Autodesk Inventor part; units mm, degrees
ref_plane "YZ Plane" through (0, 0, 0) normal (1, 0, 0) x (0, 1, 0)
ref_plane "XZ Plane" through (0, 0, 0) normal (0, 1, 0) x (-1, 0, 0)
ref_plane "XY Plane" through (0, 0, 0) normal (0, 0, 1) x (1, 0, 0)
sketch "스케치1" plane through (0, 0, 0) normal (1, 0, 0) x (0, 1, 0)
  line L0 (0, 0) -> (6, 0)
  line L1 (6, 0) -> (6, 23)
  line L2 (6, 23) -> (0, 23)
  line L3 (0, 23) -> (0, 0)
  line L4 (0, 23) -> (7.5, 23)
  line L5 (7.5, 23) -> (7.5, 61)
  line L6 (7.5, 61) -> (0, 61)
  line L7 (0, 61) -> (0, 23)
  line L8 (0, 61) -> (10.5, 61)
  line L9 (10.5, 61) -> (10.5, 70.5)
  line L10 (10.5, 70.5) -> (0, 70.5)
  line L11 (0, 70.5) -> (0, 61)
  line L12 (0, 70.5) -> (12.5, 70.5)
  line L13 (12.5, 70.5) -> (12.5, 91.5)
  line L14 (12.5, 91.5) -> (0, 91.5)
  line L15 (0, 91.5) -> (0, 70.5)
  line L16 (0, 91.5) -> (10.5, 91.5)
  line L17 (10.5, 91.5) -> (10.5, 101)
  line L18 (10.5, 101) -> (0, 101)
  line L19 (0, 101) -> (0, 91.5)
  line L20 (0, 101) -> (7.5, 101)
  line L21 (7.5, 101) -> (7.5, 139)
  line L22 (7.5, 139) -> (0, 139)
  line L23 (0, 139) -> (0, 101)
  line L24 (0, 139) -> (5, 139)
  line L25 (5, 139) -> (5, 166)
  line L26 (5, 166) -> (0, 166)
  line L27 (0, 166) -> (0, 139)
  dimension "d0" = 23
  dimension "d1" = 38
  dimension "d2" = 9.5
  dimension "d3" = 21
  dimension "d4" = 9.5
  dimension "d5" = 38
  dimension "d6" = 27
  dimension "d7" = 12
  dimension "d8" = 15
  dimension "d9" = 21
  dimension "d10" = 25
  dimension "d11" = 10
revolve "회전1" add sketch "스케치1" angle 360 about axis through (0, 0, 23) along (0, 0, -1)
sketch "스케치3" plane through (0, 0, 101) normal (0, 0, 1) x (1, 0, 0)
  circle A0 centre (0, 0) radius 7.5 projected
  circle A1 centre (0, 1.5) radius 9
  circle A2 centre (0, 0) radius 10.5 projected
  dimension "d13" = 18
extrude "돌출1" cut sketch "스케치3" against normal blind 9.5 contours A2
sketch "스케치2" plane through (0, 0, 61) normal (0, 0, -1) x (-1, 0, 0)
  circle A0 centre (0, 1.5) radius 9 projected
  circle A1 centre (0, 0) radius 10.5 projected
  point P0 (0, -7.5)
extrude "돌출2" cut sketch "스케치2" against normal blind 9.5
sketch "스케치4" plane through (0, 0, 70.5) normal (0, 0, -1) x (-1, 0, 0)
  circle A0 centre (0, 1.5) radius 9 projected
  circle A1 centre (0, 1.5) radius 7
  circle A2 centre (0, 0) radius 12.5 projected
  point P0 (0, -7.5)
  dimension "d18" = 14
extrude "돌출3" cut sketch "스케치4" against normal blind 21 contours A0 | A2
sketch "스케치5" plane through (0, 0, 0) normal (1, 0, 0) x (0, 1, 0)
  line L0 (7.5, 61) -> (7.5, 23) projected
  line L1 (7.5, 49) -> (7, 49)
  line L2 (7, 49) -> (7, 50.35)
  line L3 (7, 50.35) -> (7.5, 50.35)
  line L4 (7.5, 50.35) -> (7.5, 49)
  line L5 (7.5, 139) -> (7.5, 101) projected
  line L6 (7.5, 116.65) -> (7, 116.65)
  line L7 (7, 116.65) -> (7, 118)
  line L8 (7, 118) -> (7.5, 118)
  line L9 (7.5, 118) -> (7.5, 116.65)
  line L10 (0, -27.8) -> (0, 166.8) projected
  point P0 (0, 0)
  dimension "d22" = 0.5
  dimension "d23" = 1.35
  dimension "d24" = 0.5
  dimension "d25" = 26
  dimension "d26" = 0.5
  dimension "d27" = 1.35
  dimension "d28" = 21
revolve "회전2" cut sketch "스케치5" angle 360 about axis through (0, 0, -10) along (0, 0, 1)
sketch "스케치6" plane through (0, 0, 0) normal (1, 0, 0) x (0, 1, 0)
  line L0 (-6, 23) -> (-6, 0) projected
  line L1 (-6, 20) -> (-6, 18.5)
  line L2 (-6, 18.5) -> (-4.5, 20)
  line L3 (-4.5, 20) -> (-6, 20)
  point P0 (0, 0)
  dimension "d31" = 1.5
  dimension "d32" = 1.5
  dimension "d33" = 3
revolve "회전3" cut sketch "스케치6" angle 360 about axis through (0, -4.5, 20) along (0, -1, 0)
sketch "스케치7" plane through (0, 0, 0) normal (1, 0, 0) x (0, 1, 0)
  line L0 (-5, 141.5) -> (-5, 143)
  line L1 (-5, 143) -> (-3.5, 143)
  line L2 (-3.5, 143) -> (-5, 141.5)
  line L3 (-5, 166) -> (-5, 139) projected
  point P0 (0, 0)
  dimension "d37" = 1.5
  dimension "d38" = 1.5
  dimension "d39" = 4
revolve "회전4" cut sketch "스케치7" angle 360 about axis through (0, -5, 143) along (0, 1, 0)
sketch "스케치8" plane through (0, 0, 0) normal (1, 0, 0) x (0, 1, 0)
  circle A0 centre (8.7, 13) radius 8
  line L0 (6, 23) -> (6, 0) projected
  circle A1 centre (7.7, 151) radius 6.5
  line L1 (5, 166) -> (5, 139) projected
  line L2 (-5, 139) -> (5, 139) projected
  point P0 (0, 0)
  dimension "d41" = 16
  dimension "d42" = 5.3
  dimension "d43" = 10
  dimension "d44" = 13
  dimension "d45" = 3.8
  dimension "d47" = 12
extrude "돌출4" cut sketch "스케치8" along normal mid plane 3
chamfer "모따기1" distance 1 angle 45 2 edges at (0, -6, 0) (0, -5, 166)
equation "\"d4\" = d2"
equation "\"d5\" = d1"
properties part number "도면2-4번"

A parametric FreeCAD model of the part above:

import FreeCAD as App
import Part
import Sketcher
from FreeCAD import Vector
Q = App.Units.Quantity


def edges_at(feature, points):
    """Names of the edges that pass closest to the given points."""
    edges = feature.Shape.Edges
    near = lambda p: min(range(len(edges)), key=lambda i: edges[i].distToShape(Part.Vertex(*p))[0])
    return sorted({f"Edge{near(p) + 1}" for p in points})

doc = App.newDocument("Part")
body = doc.addObject("PartDesign::Body", "Body")

# Sketch on YZ plane
sketch1 = body.newObject("Sketcher::SketchObject", "Sketch")
sketch1.AttachmentSupport = (doc.getObject("YZ_Plane"), [""])
sketch1.MapMode = "FlatFace"
sketch1.addGeometry(Part.LineSegment(Vector(0, 0, 0), Vector(6, 0, 0)), False)
sketch1.addGeometry(Part.LineSegment(Vector(6, 0, 0), Vector(6, 23, 0)), False)
sketch1.addGeometry(Part.LineSegment(Vector(6, 23, 0), Vector(7.5, 23, 0)), False)
sketch1.addGeometry(Part.LineSegment(Vector(7.5, 23, 0), Vector(7.5, 61, 0)), False)
sketch1.addGeometry(Part.LineSegment(Vector(7.5, 61, 0), Vector(10.5, 61, 0)), False)
sketch1.addGeometry(Part.LineSegment(Vector(10.5, 61, 0), Vector(10.5, 70.5, 0)), False)
sketch1.addGeometry(Part.LineSegment(Vector(10.5, 70.5, 0), Vector(12.5, 70.5, 0)), False)
sketch1.addGeometry(Part.LineSegment(Vector(12.5, 70.5, 0), Vector(12.5, 91.5, 0)), False)
sketch1.addGeometry(Part.LineSegment(Vector(12.5, 91.5, 0), Vector(10.5, 91.5, 0)), False)
sketch1.addGeometry(Part.LineSegment(Vector(10.5, 91.5, 0), Vector(10.5, 101, 0)), False)
sketch1.addGeometry(Part.LineSegment(Vector(10.5, 101, 0), Vector(7.5, 101, 0)), False)
sketch1.addGeometry(Part.LineSegment(Vector(7.5, 101, 0), Vector(7.5, 139, 0)), False)
sketch1.addGeometry(Part.LineSegment(Vector(7.5, 139, 0), Vector(5, 139, 0)), False)
sketch1.addGeometry(Part.LineSegment(Vector(5, 139, 0), Vector(5, 166, 0)), False)
sketch1.addGeometry(Part.LineSegment(Vector(5, 166, 0), Vector(0, 166, 0)), False)
sketch1.addGeometry(Part.LineSegment(Vector(0, 166, 0), Vector(0, 0, 0)), False)
sketch1.addConstraint(Sketcher.Constraint("Coincident", 0, 2, 1, 1))
sketch1.addConstraint(Sketcher.Constraint("Coincident", 1, 2, 2, 1))
sketch1.addConstraint(Sketcher.Constraint("Coincident", 2, 2, 3, 1))
sketch1.addConstraint(Sketcher.Constraint("Coincident", 3, 2, 4, 1))
sketch1.addConstraint(Sketcher.Constraint("Coincident", 4, 2, 5, 1))
sketch1.addConstraint(Sketcher.Constraint("Coincident", 5, 2, 6, 1))
sketch1.addConstraint(Sketcher.Constraint("Coincident", 6, 2, 7, 1))
sketch1.addConstraint(Sketcher.Constraint("Coincident", 7, 2, 8, 1))
sketch1.addConstraint(Sketcher.Constraint("Coincident", 8, 2, 9, 1))
sketch1.addConstraint(Sketcher.Constraint("Coincident", 9, 2, 10, 1))
sketch1.addConstraint(Sketcher.Constraint("Coincident", 10, 2, 11, 1))
sketch1.addConstraint(Sketcher.Constraint("Coincident", 11, 2, 12, 1))
sketch1.addConstraint(Sketcher.Constraint("Coincident", 12, 2, 13, 1))
sketch1.addConstraint(Sketcher.Constraint("Coincident", 13, 2, 14, 1))
sketch1.addConstraint(Sketcher.Constraint("Coincident", 14, 2, 15, 1))
sketch1.addConstraint(Sketcher.Constraint("Coincident", 15, 2, 0, 1))
sketch1.addConstraint(Sketcher.Constraint("Horizontal", 0))
sketch1.addConstraint(Sketcher.Constraint("Vertical", 1))
sketch1.addConstraint(Sketcher.Constraint("Horizontal", 2))
sketch1.addConstraint(Sketcher.Constraint("Vertical", 3))
sketch1.addConstraint(Sketcher.Constraint("Horizontal", 4))
sketch1.addConstraint(Sketcher.Constraint("Vertical", 5))
sketch1.addConstraint(Sketcher.Constraint("Horizontal", 6))
sketch1.addConstraint(Sketcher.Constraint("Vertical", 7))
sketch1.addConstraint(Sketcher.Constraint("Horizontal", 8))
sketch1.addConstraint(Sketcher.Constraint("Vertical", 9))
sketch1.addConstraint(Sketcher.Constraint("Horizontal", 10))
sketch1.addConstraint(Sketcher.Constraint("Vertical", 11))
sketch1.addConstraint(Sketcher.Constraint("Horizontal", 12))
sketch1.addConstraint(Sketcher.Constraint("Vertical", 13))
sketch1.addConstraint(Sketcher.Constraint("Horizontal", 14))
sketch1.addConstraint(Sketcher.Constraint("Vertical", 15))
sketch1.addConstraint(Sketcher.Constraint("Coincident", 15, 2, -1, 1))
sketch1.addConstraint(Sketcher.Constraint("Vertical", 5, 2, 8, 2))
sketch1.addConstraint(Sketcher.Constraint("Vertical", 3, 2, 10, 2))
sketch1.addConstraint(Sketcher.Constraint("Equal", 5, 9))
sketch1.addConstraint(Sketcher.Constraint("Equal", 3, 11))
sketch1.addConstraint(Sketcher.Constraint("DistanceY", 1, 1, 1, 2, Q("23 mm")))
sketch1.addConstraint(Sketcher.Constraint("DistanceY", 3, 1, 3, 2, Q("38 mm")))
sketch1.addConstraint(Sketcher.Constraint("DistanceY", 7, 1, 7, 2, Q("21 mm")))
sketch1.addConstraint(Sketcher.Constraint("DistanceY", 13, 1, 13, 2, Q("27 mm")))
sketch1.addConstraint(Sketcher.Constraint("DistanceY", 5, 1, 5, 2, Q("9.5 mm")))
sketch1.addConstraint(Sketcher.Constraint("DistanceX", 0, 1, 0, 2, Q("6 mm")))
sketch1.addConstraint(Sketcher.Constraint("DistanceX", 4, 1, 4, 2, Q("3 mm")))
sketch1.addConstraint(Sketcher.Constraint("DistanceX", 6, 1, 6, 2, Q("2 mm")))
sketch1.addConstraint(Sketcher.Constraint("DistanceX", 14, 2, 14, 1, Q("5 mm")))
sketch1.addConstraint(Sketcher.Constraint("DistanceX", 2, 1, 2, 2, Q("1.5 mm")))
revolution = body.newObject("PartDesign::Revolution", "Revolution")
revolution.Profile = sketch1
revolution.ReferenceAxis = (sketch1, ["V_Axis"])
revolution.Angle = 360

# Sketch on XY plane
sketch2 = body.newObject("Sketcher::SketchObject", "Sketch001")
sketch2.AttachmentSupport = (doc.getObject("XY_Plane"), [""])
sketch2.MapMode = "FlatFace"
sketch2.AttachmentOffset = App.Placement(Vector(0, 0, 101), App.Rotation())
sketch2.addGeometry(Part.Circle(Vector(0, 0, 0), Vector(0, 0, 1), 10.5), False)
sketch2.addGeometry(Part.Circle(Vector(0, 1.5, 0), Vector(0, 0, 1), 9), False)
sketch2.addConstraint(Sketcher.Constraint("Coincident", 0, 3, -1, 1))
sketch2.addConstraint(Sketcher.Constraint("PointOnObject", 1, 3, -2))
sketch2.addConstraint(Sketcher.Constraint("Diameter", 1, Q("18 mm")))
sketch2.addConstraint(Sketcher.Constraint("Diameter", 0, Q("21 mm")))
sketch2.addConstraint(Sketcher.Constraint("DistanceY", -1, 1, 1, 3, Q("1.5 mm")))
pocket1 = body.newObject("PartDesign::Pocket", "Pocket")
pocket1.Profile = sketch2
pocket1.Length = 9.5

# Sketch on XY plane
sketch3 = body.newObject("Sketcher::SketchObject", "Sketch002")
sketch3.AttachmentSupport = (doc.getObject("XY_Plane"), [""])
sketch3.MapMode = "FlatFace"
sketch3.AttachmentOffset = App.Placement(Vector(0, 0, 61), App.Rotation())
sketch3.addGeometry(Part.Circle(Vector(0, 0, 0), Vector(0, 0, 1), 10.5), False)
sketch3.addGeometry(Part.Circle(Vector(0, 1.5, 0), Vector(0, 0, 1), 9), False)
sketch3.addConstraint(Sketcher.Constraint("Coincident", 0, 3, -1, 1))
sketch3.addConstraint(Sketcher.Constraint("PointOnObject", 1, 3, -2))
sketch3.addConstraint(Sketcher.Constraint("Diameter", 0, Q("21 mm")))
sketch3.addConstraint(Sketcher.Constraint("Diameter", 1, Q("18 mm")))
sketch3.addConstraint(Sketcher.Constraint("DistanceY", -1, 1, 1, 3, Q("1.5 mm")))
pocket2 = body.newObject("PartDesign::Pocket", "Pocket001")
pocket2.Profile = sketch3
pocket2.Length = 9.5
pocket2.Reversed = True

# Sketch on XY plane
sketch4 = body.newObject("Sketcher::SketchObject", "Sketch003")
sketch4.AttachmentSupport = (doc.getObject("XY_Plane"), [""])
sketch4.MapMode = "FlatFace"
sketch4.AttachmentOffset = App.Placement(Vector(0, 0, 70.5), App.Rotation())
sketch4.addGeometry(Part.Circle(Vector(0, 0, 0), Vector(0, 0, 1), 12.5), False)
sketch4.addGeometry(Part.Circle(Vector(0, 1.5, 0), Vector(0, 0, 1), 7), False)
sketch4.addConstraint(Sketcher.Constraint("Coincident", 0, 3, -1, 1))
sketch4.addConstraint(Sketcher.Constraint("PointOnObject", 1, 3, -2))
sketch4.addConstraint(Sketcher.Constraint("Diameter", 1, Q("14 mm")))
sketch4.addConstraint(Sketcher.Constraint("Diameter", 0, Q("25 mm")))
sketch4.addConstraint(Sketcher.Constraint("DistanceY", -1, 1, 1, 3, Q("1.5 mm")))
pocket3 = body.newObject("PartDesign::Pocket", "Pocket002")
pocket3.Profile = sketch4
pocket3.Length = 21
pocket3.Reversed = True

# Sketch on YZ plane
sketch5 = body.newObject("Sketcher::SketchObject", "Sketch004")
sketch5.AttachmentSupport = (doc.getObject("YZ_Plane"), [""])
sketch5.MapMode = "FlatFace"
sketch5.addGeometry(Part.LineSegment(Vector(7.5, 49, 0), Vector(7.5, 50.35, 0)), False)
sketch5.addGeometry(Part.LineSegment(Vector(7.5, 50.35, 0), Vector(7, 50.35, 0)), False)
sketch5.addGeometry(Part.LineSegment(Vector(7, 50.35, 0), Vector(7, 49, 0)), False)
sketch5.addGeometry(Part.LineSegment(Vector(7, 49, 0), Vector(7.5, 49, 0)), False)
sketch5.addGeometry(Part.LineSegment(Vector(7.5, 116.65, 0), Vector(7.5, 118, 0)), False)
sketch5.addGeometry(Part.LineSegment(Vector(7.5, 118, 0), Vector(7, 118, 0)), False)
sketch5.addGeometry(Part.LineSegment(Vector(7, 118, 0), Vector(7, 116.65, 0)), False)
sketch5.addGeometry(Part.LineSegment(Vector(7, 116.65, 0), Vector(7.5, 116.65, 0)), False)
sketch5.addConstraint(Sketcher.Constraint("Coincident", 0, 2, 1, 1))
sketch5.addConstraint(Sketcher.Constraint("Coincident", 1, 2, 2, 1))
sketch5.addConstraint(Sketcher.Constraint("Coincident", 2, 2, 3, 1))
sketch5.addConstraint(Sketcher.Constraint("Coincident", 3, 2, 0, 1))
sketch5.addConstraint(Sketcher.Constraint("Coincident", 4, 2, 5, 1))
sketch5.addConstraint(Sketcher.Constraint("Coincident", 5, 2, 6, 1))
sketch5.addConstraint(Sketcher.Constraint("Coincident", 6, 2, 7, 1))
sketch5.addConstraint(Sketcher.Constraint("Coincident", 7, 2, 4, 1))
sketch5.addConstraint(Sketcher.Constraint("Vertical", 0))
sketch5.addConstraint(Sketcher.Constraint("Horizontal", 1))
sketch5.addConstraint(Sketcher.Constraint("Vertical", 2))
sketch5.addConstraint(Sketcher.Constraint("Horizontal", 3))
sketch5.addConstraint(Sketcher.Constraint("Vertical", 4))
sketch5.addConstraint(Sketcher.Constraint("Horizontal", 5))
sketch5.addConstraint(Sketcher.Constraint("Vertical", 6))
sketch5.addConstraint(Sketcher.Constraint("Horizontal", 7))
sketch5.addConstraint(Sketcher.Constraint("Vertical", 3, 2, 4, 2))
sketch5.addConstraint(Sketcher.Constraint("Vertical", 2, 2, 5, 2))
sketch5.addConstraint(Sketcher.Constraint("Equal", 2, 4))
sketch5.addConstraint(Sketcher.Constraint("DistanceX", 1, 2, 1, 1, Q("0.5 mm")))
sketch5.addConstraint(Sketcher.Constraint("DistanceY", 0, 1, 0, 2, Q("1.35 mm")))
sketch5.addConstraint(Sketcher.Constraint("DistanceX", -1, 1, 1, 2, Q("7 mm")))
sketch5.addConstraint(Sketcher.Constraint("DistanceY", -1, 1, 2, 2, Q("49 mm")))
sketch5.addConstraint(Sketcher.Constraint("DistanceY", -1, 1, 4, 2, Q("118 mm")))
groove = body.newObject("PartDesign::Groove", "Groove")
groove.Profile = sketch5
groove.ReferenceAxis = (sketch5, ["V_Axis"])
groove.Angle = 360

# Sketch on YZ plane
sketch6 = body.newObject("Sketcher::SketchObject", "Sketch005")
sketch6.AttachmentSupport = (doc.getObject("YZ_Plane"), [""])
sketch6.MapMode = "FlatFace"
sketch6.addGeometry(Part.LineSegment(Vector(-4.5, 20, 0), Vector(-6, 20, 0)), False)
sketch6.addGeometry(Part.LineSegment(Vector(-6, 20, 0), Vector(-6, 18.5, 0)), False)
sketch6.addGeometry(Part.LineSegment(Vector(-6, 18.5, 0), Vector(-4.5, 20, 0)), False)
sketch6.addGeometry(Part.LineSegment(Vector(-4.5, 20, 0), Vector(-6, 20, 0)), True)  # axis
sketch6.addConstraint(Sketcher.Constraint("Coincident", 0, 2, 1, 1))
sketch6.addConstraint(Sketcher.Constraint("Coincident", 1, 2, 2, 1))
sketch6.addConstraint(Sketcher.Constraint("Coincident", 2, 2, 0, 1))
sketch6.addConstraint(Sketcher.Constraint("Horizontal", 0))
sketch6.addConstraint(Sketcher.Constraint("Vertical", 1))
sketch6.addConstraint(Sketcher.Constraint("Horizontal", 3))
sketch6.addConstraint(Sketcher.Constraint("Coincident", 3, 1, 2, 2))
sketch6.addConstraint(Sketcher.Constraint("Vertical", 1, 2, 3, 2))
sketch6.addConstraint(Sketcher.Constraint("Equal", 3, 1))
sketch6.addConstraint(Sketcher.Constraint("DistanceX", 0, 2, 0, 1, Q("1.5 mm")))
sketch6.addConstraint(Sketcher.Constraint("DistanceX", 0, 2, -1, 1, Q("6 mm")))
sketch6.addConstraint(Sketcher.Constraint("DistanceY", -1, 1, 0, 2, Q("20 mm")))
groove2 = body.newObject("PartDesign::Groove", "Groove001")
groove2.Profile = sketch6
groove2.ReferenceAxis = (sketch6, ["Axis0"])
groove2.Angle = 360

# Sketch on YZ plane
sketch7 = body.newObject("Sketcher::SketchObject", "Sketch006")
sketch7.AttachmentSupport = (doc.getObject("YZ_Plane"), [""])
sketch7.MapMode = "FlatFace"
sketch7.addGeometry(Part.LineSegment(Vector(-5, 143, 0), Vector(-5, 141.5, 0)), False)
sketch7.addGeometry(Part.LineSegment(Vector(-5, 141.5, 0), Vector(-3.5, 143, 0)), False)
sketch7.addGeometry(Part.LineSegment(Vector(-3.5, 143, 0), Vector(-5, 143, 0)), False)
sketch7.addGeometry(Part.LineSegment(Vector(-5, 143, 0), Vector(-3.5, 143, 0)), True)  # axis
sketch7.addConstraint(Sketcher.Constraint("Coincident", 0, 2, 1, 1))
sketch7.addConstraint(Sketcher.Constraint("Coincident", 1, 2, 2, 1))
sketch7.addConstraint(Sketcher.Constraint("Coincident", 2, 2, 0, 1))
sketch7.addConstraint(Sketcher.Constraint("Vertical", 0))
sketch7.addConstraint(Sketcher.Constraint("Horizontal", 2))
sketch7.addConstraint(Sketcher.Constraint("Horizontal", 3))
sketch7.addConstraint(Sketcher.Constraint("Coincident", 3, 1, 2, 2))
sketch7.addConstraint(Sketcher.Constraint("Equal", 2, 3))
sketch7.addConstraint(Sketcher.Constraint("Equal", 3, 0))
sketch7.addConstraint(Sketcher.Constraint("DistanceX", 2, 2, 2, 1, Q("1.5 mm")))
sketch7.addConstraint(Sketcher.Constraint("DistanceX", 0, 2, -1, 1, Q("5 mm")))
sketch7.addConstraint(Sketcher.Constraint("DistanceY", -1, 1, 1, 2, Q("143 mm")))
groove3 = body.newObject("PartDesign::Groove", "Groove002")
groove3.Profile = sketch7
groove3.ReferenceAxis = (sketch7, ["Axis0"])
groove3.Angle = 360

# Sketch on YZ plane
sketch8 = body.newObject("Sketcher::SketchObject", "Sketch007")
sketch8.AttachmentSupport = (doc.getObject("YZ_Plane"), [""])
sketch8.MapMode = "FlatFace"
sketch8.addGeometry(Part.Circle(Vector(8.7, 13, 0), Vector(0, 0, 1), 8), False)
sketch8.addGeometry(Part.Circle(Vector(7.7, 151, 0), Vector(0, 0, 1), 6.5), False)
sketch8.addConstraint(Sketcher.Constraint("Diameter", 0, Q("16 mm")))
sketch8.addConstraint(Sketcher.Constraint("Diameter", 1, Q("13 mm")))
sketch8.addConstraint(Sketcher.Constraint("DistanceY", -1, 1, 0, 3, Q("13 mm")))
sketch8.addConstraint(Sketcher.Constraint("DistanceY", -1, 1, 1, 3, Q("151 mm")))
sketch8.addConstraint(Sketcher.Constraint("DistanceX", 1, 3, 0, 3, Q("1 mm")))
sketch8.addConstraint(Sketcher.Constraint("DistanceX", -1, 1, 0, 3, Q("8.7 mm")))
pocket4 = body.newObject("PartDesign::Pocket", "Pocket003")
pocket4.Profile = sketch8
pocket4.Length = 3
pocket4.Midplane = True
doc.recompute()

chamfer = body.newObject("PartDesign::Chamfer", "Chamfer")
chamfer.Base = (pocket4, edges_at(pocket4, [(0, -6, 0), (0, -5, 166)]))
chamfer.Size = 1

doc.recompute()
